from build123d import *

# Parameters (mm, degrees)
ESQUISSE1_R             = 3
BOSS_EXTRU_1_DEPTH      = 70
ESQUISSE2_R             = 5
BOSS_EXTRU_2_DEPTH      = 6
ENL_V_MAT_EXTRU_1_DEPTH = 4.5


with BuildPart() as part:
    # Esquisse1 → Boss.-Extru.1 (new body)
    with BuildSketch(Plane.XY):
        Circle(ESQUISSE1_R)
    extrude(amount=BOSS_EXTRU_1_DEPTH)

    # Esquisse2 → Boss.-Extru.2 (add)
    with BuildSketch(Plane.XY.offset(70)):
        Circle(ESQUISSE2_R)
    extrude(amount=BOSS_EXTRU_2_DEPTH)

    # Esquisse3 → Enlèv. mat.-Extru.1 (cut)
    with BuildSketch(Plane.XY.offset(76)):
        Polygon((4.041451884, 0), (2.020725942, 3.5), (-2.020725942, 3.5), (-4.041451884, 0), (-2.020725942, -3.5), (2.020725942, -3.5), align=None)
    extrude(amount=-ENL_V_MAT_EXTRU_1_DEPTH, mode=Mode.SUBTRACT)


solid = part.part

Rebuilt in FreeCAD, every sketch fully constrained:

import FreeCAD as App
import Part
import Sketcher

V = App.Vector
Q = App.Units.Quantity

doc = App.newDocument("Part")
params = doc.addObject("Spreadsheet::Sheet", "Params")
for row, (alias, value) in enumerate([
    ("sketch1_diameter", "6 mm"),
    ("pad1_length", "70 mm"),
    ("sketch2_diameter", "10 mm"),
    ("pad2_length", "6 mm"),
    ("pocket1_length", "4.5 mm"),
], start=1):
    params.set(f"A{row}", alias)
    params.set(f"B{row}", "=" + value)
    params.setAlias(f"B{row}", alias)

body = doc.addObject("PartDesign::Body", "Body")

# Sketch on XY plane
sketch1 = body.newObject("Sketcher::SketchObject", "Sketch")
sketch1.AttachmentSupport = (doc.getObject("XY_Plane"), [""])
sketch1.MapMode = "FlatFace"
sketch1.addGeometry(Part.Circle(V(0, 0, 0), V(0, 0, 1), 3), False)
sketch1.addConstraint(Sketcher.Constraint("Coincident", 0, 3, -1, 1))
sketch1.addConstraint(Sketcher.Constraint("Diameter", 0, Q("6 mm")))
sketch1.setExpression("Constraints[1]", "Params.sketch1_diameter")
pad1 = body.newObject("PartDesign::Pad", "Pad")
pad1.Profile = sketch1
pad1.setExpression("Length", "Params.pad1_length")

# Sketch on XY plane
sketch2 = body.newObject("Sketcher::SketchObject", "Sketch001")
sketch2.AttachmentSupport = (doc.getObject("XY_Plane"), [""])
sketch2.MapMode = "FlatFace"
sketch2.AttachmentOffset = App.Placement(V(0, 0, 70), App.Rotation())
sketch2.addGeometry(Part.Circle(V(0, 0, 0), V(0, 0, 1), 5), False)
sketch2.addConstraint(Sketcher.Constraint("Coincident", 0, 3, -1, 1))
sketch2.addConstraint(Sketcher.Constraint("Diameter", 0, Q("10 mm")))
sketch2.setExpression("Constraints[1]", "Params.sketch2_diameter")
pad2 = body.newObject("PartDesign::Pad", "Pad001")
pad2.Profile = sketch2
pad2.setExpression("Length", "Params.pad2_length")

# Sketch on XY plane
sketch3 = body.newObject("Sketcher::SketchObject", "Sketch002")
sketch3.AttachmentSupport = (doc.getObject("XY_Plane"), [""])
sketch3.MapMode = "FlatFace"
sketch3.AttachmentOffset = App.Placement(V(0, 0, 76), App.Rotation())
sketch3.addGeometry(Part.LineSegment(V(4, 0, 0), V(2, 3.5, 0)), False)
sketch3.addGeometry(Part.LineSegment(V(2, 3.5, 0), V(-2, 3.5, 0)), False)
sketch3.addGeometry(Part.LineSegment(V(-2, 3.5, 0), V(-4, 0, 0)), False)
sketch3.addGeometry(Part.LineSegment(V(-4, 0, 0), V(-2, -3.5, 0)), False)
sketch3.addGeometry(Part.LineSegment(V(-2, -3.5, 0), V(2, -3.5, 0)), False)
sketch3.addGeometry(Part.LineSegment(V(2, -3.5, 0), V(4, 0, 0)), False)
sketch3.addConstraint(Sketcher.Constraint("Coincident", 0, 2, 1, 1))
sketch3.addConstraint(Sketcher.Constraint("Coincident", 1, 2, 2, 1))
sketch3.addConstraint(Sketcher.Constraint("Coincident", 2, 2, 3, 1))
sketch3.addConstraint(Sketcher.Constraint("Coincident", 3, 2, 4, 1))
sketch3.addConstraint(Sketcher.Constraint("Coincident", 4, 2, 5, 1))
sketch3.addConstraint(Sketcher.Constraint("Coincident", 5, 2, 0, 1))
sketch3.addConstraint(Sketcher.Constraint("Horizontal", 1))
sketch3.addConstraint(Sketcher.Constraint("Horizontal", 4))
sketch3.addConstraint(Sketcher.Constraint("Symmetric", 0, 2, 3, 2, -1, 1))
sketch3.addConstraint(Sketcher.Constraint("Symmetric", 2, 2, 5, 2, -1, 1))
sketch3.addConstraint(Sketcher.Constraint("PointOnObject", 2, 2, -1))
sketch3.addConstraint(Sketcher.Constraint("Parallel", 2, 5))
sketch3.addConstraint(Sketcher.Constraint("Vertical", 1, 2, 3, 2))
sketch3.addConstraint(Sketcher.Constraint("Angle", 0, Q("120 deg")))
sketch3.addConstraint(Sketcher.Constraint("DistanceY", 3, 2, 1, 2, Q("7 mm")))
sketch3.addConstraint(Sketcher.Constraint("DistanceX", 1, 2, 1, 1, Q("4.041452 mm")))
pocket1 = body.newObject("PartDesign::Pocket", "Pocket")
pocket1.Profile = sketch3
pocket1.setExpression("Length", "Params.pocket1_length")

doc.recompute()
